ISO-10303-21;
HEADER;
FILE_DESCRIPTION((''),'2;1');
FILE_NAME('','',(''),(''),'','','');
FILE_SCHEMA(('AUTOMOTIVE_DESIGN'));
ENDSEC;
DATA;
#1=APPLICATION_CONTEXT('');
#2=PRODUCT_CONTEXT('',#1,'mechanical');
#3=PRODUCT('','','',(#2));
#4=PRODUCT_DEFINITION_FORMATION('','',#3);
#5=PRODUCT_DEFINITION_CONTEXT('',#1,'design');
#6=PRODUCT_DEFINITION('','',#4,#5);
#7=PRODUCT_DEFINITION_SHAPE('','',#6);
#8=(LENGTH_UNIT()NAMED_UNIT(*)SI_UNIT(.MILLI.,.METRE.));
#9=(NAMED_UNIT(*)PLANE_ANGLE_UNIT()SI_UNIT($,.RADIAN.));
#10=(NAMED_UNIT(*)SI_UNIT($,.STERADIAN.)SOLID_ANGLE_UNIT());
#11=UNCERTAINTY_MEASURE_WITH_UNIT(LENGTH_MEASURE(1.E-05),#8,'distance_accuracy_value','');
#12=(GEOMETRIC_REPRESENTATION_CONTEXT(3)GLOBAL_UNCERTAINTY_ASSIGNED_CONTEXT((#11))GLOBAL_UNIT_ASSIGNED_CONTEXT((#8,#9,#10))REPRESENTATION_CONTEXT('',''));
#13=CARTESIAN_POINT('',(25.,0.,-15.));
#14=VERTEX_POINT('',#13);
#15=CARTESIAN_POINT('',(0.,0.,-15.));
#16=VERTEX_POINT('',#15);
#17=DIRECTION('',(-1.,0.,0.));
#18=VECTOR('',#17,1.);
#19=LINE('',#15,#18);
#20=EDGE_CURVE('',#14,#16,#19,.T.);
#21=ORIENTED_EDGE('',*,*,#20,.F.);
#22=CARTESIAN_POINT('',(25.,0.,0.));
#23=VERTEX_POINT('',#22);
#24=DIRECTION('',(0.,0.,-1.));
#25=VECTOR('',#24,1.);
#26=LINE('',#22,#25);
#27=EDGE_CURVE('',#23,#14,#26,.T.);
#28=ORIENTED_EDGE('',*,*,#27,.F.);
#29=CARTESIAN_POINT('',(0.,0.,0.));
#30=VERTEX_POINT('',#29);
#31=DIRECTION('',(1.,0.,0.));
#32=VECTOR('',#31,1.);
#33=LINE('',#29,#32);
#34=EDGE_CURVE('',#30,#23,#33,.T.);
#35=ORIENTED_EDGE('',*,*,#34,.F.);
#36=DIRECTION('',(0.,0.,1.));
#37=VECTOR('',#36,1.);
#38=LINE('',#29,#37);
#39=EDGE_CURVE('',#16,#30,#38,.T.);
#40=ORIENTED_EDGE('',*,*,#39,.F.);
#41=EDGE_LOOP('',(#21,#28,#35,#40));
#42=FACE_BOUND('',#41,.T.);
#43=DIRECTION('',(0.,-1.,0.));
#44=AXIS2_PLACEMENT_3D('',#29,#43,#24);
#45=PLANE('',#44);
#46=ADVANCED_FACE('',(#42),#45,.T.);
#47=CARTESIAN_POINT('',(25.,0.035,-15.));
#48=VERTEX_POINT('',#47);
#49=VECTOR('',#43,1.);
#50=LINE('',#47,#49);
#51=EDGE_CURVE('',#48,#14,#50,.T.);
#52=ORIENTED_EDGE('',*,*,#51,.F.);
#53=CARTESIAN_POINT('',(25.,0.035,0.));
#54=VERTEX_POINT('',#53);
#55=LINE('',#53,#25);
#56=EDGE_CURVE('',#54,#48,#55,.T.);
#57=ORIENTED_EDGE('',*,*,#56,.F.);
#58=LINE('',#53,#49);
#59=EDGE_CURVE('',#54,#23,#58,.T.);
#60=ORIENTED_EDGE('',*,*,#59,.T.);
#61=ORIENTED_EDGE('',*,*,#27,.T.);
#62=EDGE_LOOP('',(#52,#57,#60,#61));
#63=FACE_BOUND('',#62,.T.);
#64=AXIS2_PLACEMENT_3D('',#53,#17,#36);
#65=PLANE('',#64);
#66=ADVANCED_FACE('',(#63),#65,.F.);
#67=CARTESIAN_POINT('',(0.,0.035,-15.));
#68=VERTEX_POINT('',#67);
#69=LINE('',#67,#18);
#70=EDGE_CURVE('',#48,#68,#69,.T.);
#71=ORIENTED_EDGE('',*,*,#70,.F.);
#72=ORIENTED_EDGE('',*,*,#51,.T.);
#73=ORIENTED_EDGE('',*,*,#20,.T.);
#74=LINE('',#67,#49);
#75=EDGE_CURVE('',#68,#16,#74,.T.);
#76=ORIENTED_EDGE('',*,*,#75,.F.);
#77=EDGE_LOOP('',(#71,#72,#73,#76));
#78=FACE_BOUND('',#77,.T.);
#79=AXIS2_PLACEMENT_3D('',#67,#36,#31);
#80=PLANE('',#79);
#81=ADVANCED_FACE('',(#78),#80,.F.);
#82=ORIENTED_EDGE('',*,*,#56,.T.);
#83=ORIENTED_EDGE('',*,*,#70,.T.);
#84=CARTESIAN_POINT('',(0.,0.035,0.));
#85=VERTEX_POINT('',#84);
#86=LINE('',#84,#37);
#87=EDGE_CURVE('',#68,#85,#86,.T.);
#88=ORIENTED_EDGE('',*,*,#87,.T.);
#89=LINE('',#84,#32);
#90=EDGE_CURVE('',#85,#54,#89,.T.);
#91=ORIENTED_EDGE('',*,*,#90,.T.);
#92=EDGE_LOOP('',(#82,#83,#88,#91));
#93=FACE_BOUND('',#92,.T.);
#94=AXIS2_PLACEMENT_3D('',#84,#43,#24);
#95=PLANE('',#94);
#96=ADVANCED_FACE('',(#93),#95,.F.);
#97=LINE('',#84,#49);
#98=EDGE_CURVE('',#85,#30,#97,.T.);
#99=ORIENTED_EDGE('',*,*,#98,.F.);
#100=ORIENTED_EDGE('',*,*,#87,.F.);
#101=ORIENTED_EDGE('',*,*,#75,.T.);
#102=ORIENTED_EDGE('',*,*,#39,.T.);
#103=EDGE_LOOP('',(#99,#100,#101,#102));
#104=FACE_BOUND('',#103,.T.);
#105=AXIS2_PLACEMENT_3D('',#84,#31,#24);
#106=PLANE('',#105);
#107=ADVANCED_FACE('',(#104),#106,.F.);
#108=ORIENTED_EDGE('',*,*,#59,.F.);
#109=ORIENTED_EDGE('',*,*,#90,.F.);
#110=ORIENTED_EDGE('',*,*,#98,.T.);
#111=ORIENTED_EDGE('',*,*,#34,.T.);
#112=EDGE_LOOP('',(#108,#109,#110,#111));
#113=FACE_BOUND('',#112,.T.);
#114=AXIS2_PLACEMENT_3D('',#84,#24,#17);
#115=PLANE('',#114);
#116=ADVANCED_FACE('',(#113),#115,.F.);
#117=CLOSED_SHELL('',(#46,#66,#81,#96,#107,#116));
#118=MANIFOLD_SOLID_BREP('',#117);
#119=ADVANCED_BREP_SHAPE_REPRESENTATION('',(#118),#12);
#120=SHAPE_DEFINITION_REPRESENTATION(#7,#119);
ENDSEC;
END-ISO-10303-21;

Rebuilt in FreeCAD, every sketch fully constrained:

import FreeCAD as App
import Part
import Sketcher

V = App.Vector


def add_polygon(sketch, points):
    """Adds a closed chain of lines whose ends are joined by coincident constraints."""
    first, n = sketch.GeometryCount, len(points)
    for a, b in zip(points, points[1:] + points[:1]):
        sketch.addGeometry(Part.LineSegment(App.Vector(*a, 0), App.Vector(*b, 0)), False)
    for i in range(n):
        sketch.addConstraint(Sketcher.Constraint("Coincident", first + i, 2, first + (i + 1) % n, 1))

doc = App.newDocument("Part")
body = doc.addObject("PartDesign::Body", "Body")

# Sketch on XZ plane
sketch1 = body.newObject("Sketcher::SketchObject", "Sketch")
sketch1.AttachmentSupport = (doc.getObject("XZ_Plane"), [""])
sketch1.MapMode = "FlatFace"
add_polygon(sketch1, [(0, -15), (0, 0), (25, 0), (25, -15)])  # lines 0-3
sketch1.addConstraint([
    Sketcher.Constraint("Vertical", 0),
    Sketcher.Constraint("Horizontal", 1),
    Sketcher.Constraint("Vertical", 2),
    Sketcher.Constraint("Horizontal", 3),
    Sketcher.Constraint("Coincident", 0, 2, -1, 1),
    Sketcher.Constraint("DistanceX", 1, 1, 1, 2, 25.0),
    Sketcher.Constraint("DistanceY", 0, 1, 0, 2, 15.0),
])
pad1 = body.newObject("PartDesign::Pad", "Pad")
pad1.Profile = sketch1
pad1.Length = 0.035
pad1.Reversed = True

doc.recompute()
